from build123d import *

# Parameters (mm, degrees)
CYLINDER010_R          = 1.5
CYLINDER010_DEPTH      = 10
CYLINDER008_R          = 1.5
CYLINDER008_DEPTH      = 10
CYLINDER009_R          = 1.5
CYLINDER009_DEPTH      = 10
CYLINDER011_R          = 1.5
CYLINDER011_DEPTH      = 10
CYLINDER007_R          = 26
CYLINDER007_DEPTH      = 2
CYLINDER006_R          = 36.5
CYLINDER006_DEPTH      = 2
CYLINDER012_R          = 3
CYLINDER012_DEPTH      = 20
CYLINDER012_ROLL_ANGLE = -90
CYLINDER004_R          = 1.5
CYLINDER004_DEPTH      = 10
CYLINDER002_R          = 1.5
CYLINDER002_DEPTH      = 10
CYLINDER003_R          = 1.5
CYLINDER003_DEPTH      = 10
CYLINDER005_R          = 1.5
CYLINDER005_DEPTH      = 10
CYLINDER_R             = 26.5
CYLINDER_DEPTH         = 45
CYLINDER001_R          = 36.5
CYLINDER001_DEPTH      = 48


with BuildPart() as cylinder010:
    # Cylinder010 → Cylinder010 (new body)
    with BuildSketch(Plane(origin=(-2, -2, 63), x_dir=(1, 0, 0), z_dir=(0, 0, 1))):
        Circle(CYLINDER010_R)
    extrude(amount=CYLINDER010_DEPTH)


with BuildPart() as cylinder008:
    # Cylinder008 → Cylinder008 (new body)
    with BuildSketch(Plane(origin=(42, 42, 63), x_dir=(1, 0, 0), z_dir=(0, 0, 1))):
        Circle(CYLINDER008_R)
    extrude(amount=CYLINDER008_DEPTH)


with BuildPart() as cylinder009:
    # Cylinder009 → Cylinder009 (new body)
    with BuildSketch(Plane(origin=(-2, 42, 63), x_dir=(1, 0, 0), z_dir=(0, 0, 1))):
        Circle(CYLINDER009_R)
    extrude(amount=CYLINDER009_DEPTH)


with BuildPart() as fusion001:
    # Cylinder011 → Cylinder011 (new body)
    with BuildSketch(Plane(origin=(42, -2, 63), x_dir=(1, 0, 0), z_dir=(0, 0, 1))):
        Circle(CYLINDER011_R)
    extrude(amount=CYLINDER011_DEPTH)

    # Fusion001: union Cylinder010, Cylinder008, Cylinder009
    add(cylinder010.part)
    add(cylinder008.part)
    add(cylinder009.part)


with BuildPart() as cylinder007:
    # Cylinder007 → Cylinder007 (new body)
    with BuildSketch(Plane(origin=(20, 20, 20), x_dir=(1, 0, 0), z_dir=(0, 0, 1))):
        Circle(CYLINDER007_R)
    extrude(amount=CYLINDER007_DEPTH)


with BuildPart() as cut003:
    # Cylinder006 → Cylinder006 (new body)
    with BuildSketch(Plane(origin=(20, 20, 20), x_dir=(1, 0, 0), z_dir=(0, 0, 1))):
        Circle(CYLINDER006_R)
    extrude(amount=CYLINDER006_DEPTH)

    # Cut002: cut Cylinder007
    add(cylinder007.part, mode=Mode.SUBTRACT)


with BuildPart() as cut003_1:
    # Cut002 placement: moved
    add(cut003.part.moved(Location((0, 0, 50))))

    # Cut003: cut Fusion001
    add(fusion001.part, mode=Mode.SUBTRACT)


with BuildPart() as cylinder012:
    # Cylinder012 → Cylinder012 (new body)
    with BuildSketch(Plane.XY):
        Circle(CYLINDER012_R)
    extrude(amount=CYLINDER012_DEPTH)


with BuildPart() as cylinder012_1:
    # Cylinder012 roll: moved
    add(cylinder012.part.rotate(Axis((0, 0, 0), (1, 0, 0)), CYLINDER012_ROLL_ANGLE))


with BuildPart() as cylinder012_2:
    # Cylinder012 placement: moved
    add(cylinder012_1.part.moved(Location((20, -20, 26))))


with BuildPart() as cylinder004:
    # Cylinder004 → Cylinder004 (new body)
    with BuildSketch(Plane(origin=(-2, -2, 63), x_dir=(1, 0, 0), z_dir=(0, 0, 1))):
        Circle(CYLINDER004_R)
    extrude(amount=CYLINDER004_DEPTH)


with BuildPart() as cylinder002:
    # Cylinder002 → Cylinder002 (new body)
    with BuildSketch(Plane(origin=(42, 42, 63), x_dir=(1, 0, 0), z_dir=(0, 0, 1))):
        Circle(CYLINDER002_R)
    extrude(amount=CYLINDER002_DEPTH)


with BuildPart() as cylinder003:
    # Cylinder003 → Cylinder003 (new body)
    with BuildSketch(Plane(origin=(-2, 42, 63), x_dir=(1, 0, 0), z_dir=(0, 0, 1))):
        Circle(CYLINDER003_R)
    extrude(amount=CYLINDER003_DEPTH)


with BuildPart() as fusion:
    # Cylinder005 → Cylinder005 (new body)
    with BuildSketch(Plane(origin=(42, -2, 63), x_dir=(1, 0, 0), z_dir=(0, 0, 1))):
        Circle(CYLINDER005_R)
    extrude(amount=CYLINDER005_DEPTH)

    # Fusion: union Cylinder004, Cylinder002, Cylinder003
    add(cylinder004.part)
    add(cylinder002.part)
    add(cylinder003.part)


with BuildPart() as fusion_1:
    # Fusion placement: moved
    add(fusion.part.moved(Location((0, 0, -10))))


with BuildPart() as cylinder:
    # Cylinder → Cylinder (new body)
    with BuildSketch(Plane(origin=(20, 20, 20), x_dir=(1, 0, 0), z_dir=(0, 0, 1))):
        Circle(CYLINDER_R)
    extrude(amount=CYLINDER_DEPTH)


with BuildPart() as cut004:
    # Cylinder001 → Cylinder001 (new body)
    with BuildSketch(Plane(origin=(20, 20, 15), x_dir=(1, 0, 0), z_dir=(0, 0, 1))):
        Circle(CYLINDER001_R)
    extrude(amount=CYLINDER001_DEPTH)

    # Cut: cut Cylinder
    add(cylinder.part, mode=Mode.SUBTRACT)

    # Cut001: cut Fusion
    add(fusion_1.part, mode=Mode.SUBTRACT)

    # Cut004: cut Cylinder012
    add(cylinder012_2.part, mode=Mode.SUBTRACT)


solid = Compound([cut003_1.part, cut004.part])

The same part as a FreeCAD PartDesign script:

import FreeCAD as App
import Part
import Sketcher

doc = App.newDocument("Part")
body = doc.addObject("PartDesign::Body", "Body")

sketch1 = body.newObject("Sketcher::SketchObject", "Sketch")
sketch1.AttachmentSupport = (doc.getObject("XY_Plane"), [""])
sketch1.MapMode = "FlatFace"
sketch1.AttachmentOffset = App.Placement(App.Vector(0, 0, 63), App.Rotation())
sketch1.addGeometry(Part.Circle(App.Vector(-2, -2, 0), App.Vector(0, 0, 1), 1.5), False)
sketch1.addConstraint([
    Sketcher.Constraint("Diameter", 0, 3.0),
    Sketcher.Constraint("DistanceX", 0, 3, -1, 1, 2.0),
    Sketcher.Constraint("DistanceY", 0, 3, -1, 1, 2.0),
])
pad1 = body.newObject("PartDesign::Pad", "Pad")
pad1.Profile = sketch1
pad1.Length = 10
body2 = doc.addObject("PartDesign::Body", "Body001")

sketch2 = body2.newObject("Sketcher::SketchObject", "Sketch001")
sketch2.AttachmentSupport = (doc.getObject("XY_Plane001"), [""])
sketch2.MapMode = "FlatFace"
sketch2.AttachmentOffset = App.Placement(App.Vector(0, 0, 63), App.Rotation())
sketch2.addGeometry(Part.Circle(App.Vector(42, 42, 0), App.Vector(0, 0, 1), 1.5), False)
sketch2.addConstraint([
    Sketcher.Constraint("Diameter", 0, 3.0),
    Sketcher.Constraint("DistanceX", -1, 1, 0, 3, 42.0),
    Sketcher.Constraint("DistanceY", -1, 1, 0, 3, 42.0),
])
pad2 = body2.newObject("PartDesign::Pad", "Pad001")
pad2.Profile = sketch2
pad2.Length = 10
body3 = doc.addObject("PartDesign::Body", "Body002")

sketch3 = body3.newObject("Sketcher::SketchObject", "Sketch002")
sketch3.AttachmentSupport = (doc.getObject("XY_Plane002"), [""])
sketch3.MapMode = "FlatFace"
sketch3.AttachmentOffset = App.Placement(App.Vector(0, 0, 63), App.Rotation())
sketch3.addGeometry(Part.Circle(App.Vector(-2, 42, 0), App.Vector(0, 0, 1), 1.5), False)
sketch3.addConstraint([
    Sketcher.Constraint("Diameter", 0, 3.0),
    Sketcher.Constraint("DistanceX", 0, 3, -1, 1, 2.0),
    Sketcher.Constraint("DistanceY", -1, 1, 0, 3, 42.0),
])
pad3 = body3.newObject("PartDesign::Pad", "Pad002")
pad3.Profile = sketch3
pad3.Length = 10
body4 = doc.addObject("PartDesign::Body", "Body003")
body4.AllowCompound = True

sketch4 = body4.newObject("Sketcher::SketchObject", "Sketch003")
sketch4.AttachmentSupport = (doc.getObject("XY_Plane003"), [""])
sketch4.MapMode = "FlatFace"
sketch4.AttachmentOffset = App.Placement(App.Vector(0, 0, 63), App.Rotation())
sketch4.addGeometry(Part.Circle(App.Vector(42, -2, 0), App.Vector(0, 0, 1), 1.5), False)
sketch4.addConstraint([
    Sketcher.Constraint("Diameter", 0, 3.0),
    Sketcher.Constraint("DistanceX", -1, 1, 0, 3, 42.0),
    Sketcher.Constraint("DistanceY", 0, 3, -1, 1, 2.0),
])
pad4 = body4.newObject("PartDesign::Pad", "Pad003")
pad4.Profile = sketch4
pad4.Length = 10
doc.recompute()

boolean = body4.newObject("PartDesign::Boolean", "Boolean")
boolean.Type = "Fuse"
boolean.addObjects([body])
doc.recompute()

boolean2 = body4.newObject("PartDesign::Boolean", "Boolean001")
boolean2.Type = "Fuse"
boolean2.addObjects([body2])
doc.recompute()

boolean3 = body4.newObject("PartDesign::Boolean", "Boolean002")
boolean3.Type = "Fuse"
boolean3.addObjects([body3])
body5 = doc.addObject("PartDesign::Body", "Body004")

sketch5 = body5.newObject("Sketcher::SketchObject", "Sketch004")
sketch5.AttachmentSupport = (doc.getObject("XY_Plane004"), [""])
sketch5.MapMode = "FlatFace"
sketch5.AttachmentOffset = App.Placement(App.Vector(0, 0, 20), App.Rotation())
sketch5.addGeometry(Part.Circle(App.Vector(20, 20, 0), App.Vector(0, 0, 1), 26), False)
sketch5.addConstraint([
    Sketcher.Constraint("Diameter", 0, 52.0),
    Sketcher.Constraint("DistanceX", -1, 1, 0, 3, 20.0),
    Sketcher.Constraint("DistanceY", -1, 1, 0, 3, 20.0),
])
pad5 = body5.newObject("PartDesign::Pad", "Pad004")
pad5.Profile = sketch5
pad5.Length = 2
body6 = doc.addObject("PartDesign::Body", "Body005")

sketch6 = body6.newObject("Sketcher::SketchObject", "Sketch005")
sketch6.AttachmentSupport = (doc.getObject("XY_Plane005"), [""])
sketch6.MapMode = "FlatFace"
sketch6.AttachmentOffset = App.Placement(App.Vector(0, 0, 20), App.Rotation())
sketch6.addGeometry(Part.Circle(App.Vector(20, 20, 0), App.Vector(0, 0, 1), 36.5), False)
sketch6.addConstraint([
    Sketcher.Constraint("Diameter", 0, 73.0),
    Sketcher.Constraint("DistanceX", -1, 1, 0, 3, 20.0),
    Sketcher.Constraint("DistanceY", -1, 1, 0, 3, 20.0),
])
pad6 = body6.newObject("PartDesign::Pad", "Pad005")
pad6.Profile = sketch6
pad6.Length = 2
doc.recompute()

boolean4 = body6.newObject("PartDesign::Boolean", "Boolean003")
boolean4.Type = "Cut"
boolean4.addObjects([body5])
body7 = doc.addObject("PartDesign::Body", "Body006")
doc.recompute()

body6.Placement = App.Placement(App.Vector(0, 0, 50), App.Rotation(App.Vector(0, 0, 1), 0))
boolean5 = body7.newObject("PartDesign::Boolean", "Boolean004")
boolean5.Type = "Fuse"
boolean5.addObjects([body6])
doc.recompute()

boolean6 = body7.newObject("PartDesign::Boolean", "Boolean005")
boolean6.Type = "Cut"
boolean6.addObjects([body4])
body8 = doc.addObject("PartDesign::Body", "Body007")

sketch7 = body8.newObject("Sketcher::SketchObject", "Sketch006")
sketch7.AttachmentSupport = (doc.getObject("XY_Plane007"), [""])
sketch7.MapMode = "FlatFace"
sketch7.addGeometry(Part.Circle(App.Vector(0, 0, 0), App.Vector(0, 0, 1), 3), False)
sketch7.addConstraint([
    Sketcher.Constraint("Coincident", 0, 3, -1, 1),
    Sketcher.Constraint("Diameter", 0, 6.0),
])
pad7 = body8.newObject("PartDesign::Pad", "Pad006")
pad7.Profile = sketch7
pad7.Length = 20
body9 = doc.addObject("PartDesign::Body", "Body008")
doc.recompute()

body8.Placement = App.Placement(App.Vector(0, 0, 0), App.Rotation(App.Vector(1, 0, 0), 270))
boolean7 = body9.newObject("PartDesign::Boolean", "Boolean006")
boolean7.Type = "Fuse"
boolean7.addObjects([body8])
body10 = doc.addObject("PartDesign::Body", "Body009")
doc.recompute()

body9.Placement = App.Placement(App.Vector(20, -20, 26), App.Rotation(App.Vector(0, 0, 1), 0))
boolean8 = body10.newObject("PartDesign::Boolean", "Boolean007")
boolean8.Type = "Fuse"
boolean8.addObjects([body9])
body11 = doc.addObject("PartDesign::Body", "Body010")

sketch8 = body11.newObject("Sketcher::SketchObject", "Sketch007")
sketch8.AttachmentSupport = (doc.getObject("XY_Plane010"), [""])
sketch8.MapMode = "FlatFace"
sketch8.AttachmentOffset = App.Placement(App.Vector(0, 0, 63), App.Rotation())
sketch8.addGeometry(Part.Circle(App.Vector(-2, -2, 0), App.Vector(0, 0, 1), 1.5), False)
sketch8.addConstraint([
    Sketcher.Constraint("Diameter", 0, 3.0),
    Sketcher.Constraint("DistanceX", 0, 3, -1, 1, 2.0),
    Sketcher.Constraint("DistanceY", 0, 3, -1, 1, 2.0),
])
pad8 = body11.newObject("PartDesign::Pad", "Pad007")
pad8.Profile = sketch8
pad8.Length = 10
body12 = doc.addObject("PartDesign::Body", "Body011")

sketch9 = body12.newObject("Sketcher::SketchObject", "Sketch008")
sketch9.AttachmentSupport = (doc.getObject("XY_Plane011"), [""])
sketch9.MapMode = "FlatFace"
sketch9.AttachmentOffset = App.Placement(App.Vector(0, 0, 63), App.Rotation())
sketch9.addGeometry(Part.Circle(App.Vector(42, 42, 0), App.Vector(0, 0, 1), 1.5), False)
sketch9.addConstraint([
    Sketcher.Constraint("Diameter", 0, 3.0),
    Sketcher.Constraint("DistanceX", -1, 1, 0, 3, 42.0),
    Sketcher.Constraint("DistanceY", -1, 1, 0, 3, 42.0),
])
pad9 = body12.newObject("PartDesign::Pad", "Pad008")
pad9.Profile = sketch9
pad9.Length = 10
body13 = doc.addObject("PartDesign::Body", "Body012")

sketch10 = body13.newObject("Sketcher::SketchObject", "Sketch009")
sketch10.AttachmentSupport = (doc.getObject("XY_Plane012"), [""])
sketch10.MapMode = "FlatFace"
sketch10.AttachmentOffset = App.Placement(App.Vector(0, 0, 63), App.Rotation())
sketch10.addGeometry(Part.Circle(App.Vector(-2, 42, 0), App.Vector(0, 0, 1), 1.5), False)
sketch10.addConstraint([
    Sketcher.Constraint("Diameter", 0, 3.0),
    Sketcher.Constraint("DistanceX", 0, 3, -1, 1, 2.0),
    Sketcher.Constraint("DistanceY", -1, 1, 0, 3, 42.0),
])
pad10 = body13.newObject("PartDesign::Pad", "Pad009")
pad10.Profile = sketch10
pad10.Length = 10
body14 = doc.addObject("PartDesign::Body", "Body013")
body14.AllowCompound = True

sketch11 = body14.newObject("Sketcher::SketchObject", "Sketch010")
sketch11.AttachmentSupport = (doc.getObject("XY_Plane013"), [""])
sketch11.MapMode = "FlatFace"
sketch11.AttachmentOffset = App.Placement(App.Vector(0, 0, 63), App.Rotation())
sketch11.addGeometry(Part.Circle(App.Vector(42, -2, 0), App.Vector(0, 0, 1), 1.5), False)
sketch11.addConstraint([
    Sketcher.Constraint("Diameter", 0, 3.0),
    Sketcher.Constraint("DistanceX", -1, 1, 0, 3, 42.0),
    Sketcher.Constraint("DistanceY", 0, 3, -1, 1, 2.0),
])
pad11 = body14.newObject("PartDesign::Pad", "Pad010")
pad11.Profile = sketch11
pad11.Length = 10
doc.recompute()

boolean9 = body14.newObject("PartDesign::Boolean", "Boolean008")
boolean9.Type = "Fuse"
boolean9.addObjects([body11])
doc.recompute()

boolean10 = body14.newObject("PartDesign::Boolean", "Boolean009")
boolean10.Type = "Fuse"
boolean10.addObjects([body12])
doc.recompute()

boolean11 = body14.newObject("PartDesign::Boolean", "Boolean010")
boolean11.Type = "Fuse"
boolean11.addObjects([body13])
body15 = doc.addObject("PartDesign::Body", "Body014")
body15.AllowCompound = True
doc.recompute()

body14.Placement = App.Placement(App.Vector(0, 0, -10), App.Rotation(App.Vector(0, 0, 1), 0))
boolean12 = body15.newObject("PartDesign::Boolean", "Boolean011")
boolean12.Type = "Fuse"
boolean12.addObjects([body14])
body16 = doc.addObject("PartDesign::Body", "Body015")

sketch12 = body16.newObject("Sketcher::SketchObject", "Sketch011")
sketch12.AttachmentSupport = (doc.getObject("XY_Plane015"), [""])
sketch12.MapMode = "FlatFace"
sketch12.AttachmentOffset = App.Placement(App.Vector(0, 0, 20), App.Rotation())
sketch12.addGeometry(Part.Circle(App.Vector(20, 20, 0), App.Vector(0, 0, 1), 26.5), False)
sketch12.addConstraint([
    Sketcher.Constraint("Diameter", 0, 53.0),
    Sketcher.Constraint("DistanceX", -1, 1, 0, 3, 20.0),
    Sketcher.Constraint("DistanceY", -1, 1, 0, 3, 20.0),
])
pad12 = body16.newObject("PartDesign::Pad", "Pad011")
pad12.Profile = sketch12
pad12.Length = 45
body17 = doc.addObject("PartDesign::Body", "Body016")

sketch13 = body17.newObject("Sketcher::SketchObject", "Sketch012")
sketch13.AttachmentSupport = (doc.getObject("XY_Plane016"), [""])
sketch13.MapMode = "FlatFace"
sketch13.AttachmentOffset = App.Placement(App.Vector(0, 0, 15), App.Rotation())
sketch13.addGeometry(Part.Circle(App.Vector(20, 20, 0), App.Vector(0, 0, 1), 36.5), False)
sketch13.addConstraint([
    Sketcher.Constraint("Diameter", 0, 73.0),
    Sketcher.Constraint("DistanceX", -1, 1, 0, 3, 20.0),
    Sketcher.Constraint("DistanceY", -1, 1, 0, 3, 20.0),
])
pad13 = body17.newObject("PartDesign::Pad", "Pad012")
pad13.Profile = sketch13
pad13.Length = 48
doc.recompute()

boolean13 = body17.newObject("PartDesign::Boolean", "Boolean012")
boolean13.Type = "Cut"
boolean13.addObjects([body16])
doc.recompute()

boolean14 = body17.newObject("PartDesign::Boolean", "Boolean013")
boolean14.Type = "Cut"
boolean14.addObjects([body15])
doc.recompute()

boolean15 = body17.newObject("PartDesign::Boolean", "Boolean014")
boolean15.Type = "Cut"
boolean15.addObjects([body10])

doc.recompute()
